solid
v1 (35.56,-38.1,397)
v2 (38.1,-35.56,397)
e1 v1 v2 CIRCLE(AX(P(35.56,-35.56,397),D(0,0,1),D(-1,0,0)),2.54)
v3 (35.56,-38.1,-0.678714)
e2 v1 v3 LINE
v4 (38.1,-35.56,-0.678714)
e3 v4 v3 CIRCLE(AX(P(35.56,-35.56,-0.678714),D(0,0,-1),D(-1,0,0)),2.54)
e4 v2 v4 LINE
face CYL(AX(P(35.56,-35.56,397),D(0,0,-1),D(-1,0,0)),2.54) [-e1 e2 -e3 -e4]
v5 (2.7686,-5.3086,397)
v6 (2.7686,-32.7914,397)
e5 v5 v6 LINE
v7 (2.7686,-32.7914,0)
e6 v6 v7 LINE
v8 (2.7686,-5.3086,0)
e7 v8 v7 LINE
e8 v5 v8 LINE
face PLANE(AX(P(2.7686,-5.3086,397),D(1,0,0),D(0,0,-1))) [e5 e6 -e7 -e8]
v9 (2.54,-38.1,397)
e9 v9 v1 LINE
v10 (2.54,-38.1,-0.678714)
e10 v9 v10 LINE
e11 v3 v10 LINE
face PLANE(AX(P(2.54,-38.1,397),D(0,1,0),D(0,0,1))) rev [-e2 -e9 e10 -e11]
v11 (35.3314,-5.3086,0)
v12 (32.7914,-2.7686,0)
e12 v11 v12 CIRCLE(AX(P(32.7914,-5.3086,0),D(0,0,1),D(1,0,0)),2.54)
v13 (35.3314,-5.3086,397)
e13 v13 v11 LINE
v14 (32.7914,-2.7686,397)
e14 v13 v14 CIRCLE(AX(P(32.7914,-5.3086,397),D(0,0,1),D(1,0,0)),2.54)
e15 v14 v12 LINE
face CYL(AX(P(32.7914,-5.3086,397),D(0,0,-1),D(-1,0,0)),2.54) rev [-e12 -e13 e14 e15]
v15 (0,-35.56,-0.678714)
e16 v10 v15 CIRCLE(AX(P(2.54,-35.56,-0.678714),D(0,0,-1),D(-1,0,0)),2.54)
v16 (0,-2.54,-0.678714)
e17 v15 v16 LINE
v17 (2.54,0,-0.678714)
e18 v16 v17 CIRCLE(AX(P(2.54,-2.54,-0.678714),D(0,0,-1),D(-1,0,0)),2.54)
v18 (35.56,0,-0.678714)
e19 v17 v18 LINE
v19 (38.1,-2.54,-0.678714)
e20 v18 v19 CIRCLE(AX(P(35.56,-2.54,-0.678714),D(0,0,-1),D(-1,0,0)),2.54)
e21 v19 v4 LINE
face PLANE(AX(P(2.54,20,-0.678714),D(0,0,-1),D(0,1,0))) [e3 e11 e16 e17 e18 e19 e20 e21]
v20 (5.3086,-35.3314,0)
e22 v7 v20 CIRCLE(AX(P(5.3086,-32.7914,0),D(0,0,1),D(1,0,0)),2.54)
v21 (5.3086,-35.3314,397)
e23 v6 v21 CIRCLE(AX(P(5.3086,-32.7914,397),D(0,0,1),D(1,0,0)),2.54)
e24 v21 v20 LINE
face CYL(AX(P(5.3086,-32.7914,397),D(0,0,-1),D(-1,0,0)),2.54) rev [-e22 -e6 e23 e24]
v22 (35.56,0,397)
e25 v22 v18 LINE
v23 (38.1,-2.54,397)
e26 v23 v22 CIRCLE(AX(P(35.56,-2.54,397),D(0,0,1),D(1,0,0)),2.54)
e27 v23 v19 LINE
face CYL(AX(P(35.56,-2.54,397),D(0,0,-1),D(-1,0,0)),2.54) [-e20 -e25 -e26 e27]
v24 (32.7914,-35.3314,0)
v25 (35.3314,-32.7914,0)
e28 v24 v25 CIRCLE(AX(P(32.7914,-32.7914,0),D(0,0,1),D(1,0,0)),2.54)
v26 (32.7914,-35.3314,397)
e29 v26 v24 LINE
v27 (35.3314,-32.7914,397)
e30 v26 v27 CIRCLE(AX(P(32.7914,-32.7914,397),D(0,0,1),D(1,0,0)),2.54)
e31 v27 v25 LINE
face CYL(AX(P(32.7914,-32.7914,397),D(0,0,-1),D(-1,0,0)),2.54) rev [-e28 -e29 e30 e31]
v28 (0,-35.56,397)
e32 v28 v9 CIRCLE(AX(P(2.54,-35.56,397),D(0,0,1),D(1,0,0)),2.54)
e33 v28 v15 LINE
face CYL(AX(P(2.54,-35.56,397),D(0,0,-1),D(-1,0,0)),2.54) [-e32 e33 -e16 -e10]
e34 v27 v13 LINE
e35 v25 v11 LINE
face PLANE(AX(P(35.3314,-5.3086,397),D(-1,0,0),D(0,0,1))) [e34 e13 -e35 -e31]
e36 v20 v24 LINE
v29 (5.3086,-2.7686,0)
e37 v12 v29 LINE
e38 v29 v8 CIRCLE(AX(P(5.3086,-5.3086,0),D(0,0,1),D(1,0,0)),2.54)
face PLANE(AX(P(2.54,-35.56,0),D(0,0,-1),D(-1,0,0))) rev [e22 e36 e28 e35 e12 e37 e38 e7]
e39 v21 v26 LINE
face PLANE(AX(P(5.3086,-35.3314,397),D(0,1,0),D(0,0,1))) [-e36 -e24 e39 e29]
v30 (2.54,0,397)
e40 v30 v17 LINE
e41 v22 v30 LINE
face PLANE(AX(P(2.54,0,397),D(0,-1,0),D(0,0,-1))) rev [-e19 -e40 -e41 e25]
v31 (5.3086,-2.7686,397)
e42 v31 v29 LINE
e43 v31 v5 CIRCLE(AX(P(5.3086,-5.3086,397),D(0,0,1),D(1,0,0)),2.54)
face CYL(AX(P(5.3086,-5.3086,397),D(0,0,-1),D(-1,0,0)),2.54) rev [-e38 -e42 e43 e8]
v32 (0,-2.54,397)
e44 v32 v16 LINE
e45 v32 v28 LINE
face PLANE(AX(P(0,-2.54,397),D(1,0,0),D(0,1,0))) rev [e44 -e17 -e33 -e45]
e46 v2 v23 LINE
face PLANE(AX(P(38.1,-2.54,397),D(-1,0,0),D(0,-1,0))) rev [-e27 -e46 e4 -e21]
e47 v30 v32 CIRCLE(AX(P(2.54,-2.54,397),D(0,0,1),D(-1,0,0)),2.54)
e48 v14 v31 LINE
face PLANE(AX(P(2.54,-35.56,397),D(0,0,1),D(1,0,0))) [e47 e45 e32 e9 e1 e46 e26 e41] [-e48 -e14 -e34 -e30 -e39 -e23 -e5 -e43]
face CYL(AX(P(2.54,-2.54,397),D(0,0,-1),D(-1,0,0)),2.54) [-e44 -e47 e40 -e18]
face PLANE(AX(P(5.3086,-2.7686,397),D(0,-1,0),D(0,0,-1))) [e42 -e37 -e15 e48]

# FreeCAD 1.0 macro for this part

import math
import FreeCAD as App
import Part
import Sketcher
Q = App.Units.Quantity

doc = App.newDocument("Part")
body = doc.addObject("PartDesign::Body", "Body")

# Sketch on XY plane
sketch1 = body.newObject("Sketcher::SketchObject", "Sketch")
sketch1.AttachmentSupport = (doc.getObject("XY_Plane"), [""])
sketch1.MapMode = "FlatFace"
sketch1.addGeometry([
    Part.LineSegment(App.Vector(35.6, 0, 0), App.Vector(2.5, 0, 0)),  # 0
    Part.ArcOfCircle(Part.Circle(App.Vector(2.5, -2.5, 0), App.Vector(0, 0, 1), 2.5), math.radians(90), math.radians(180)),  # 1
    Part.LineSegment(App.Vector(0, -2.5, 0), App.Vector(0, -35.6, 0)),  # 2
    Part.ArcOfCircle(Part.Circle(App.Vector(2.5, -35.6, 0), App.Vector(0, 0, 1), 2.5), math.radians(-180), math.radians(-90)),  # 3
    Part.LineSegment(App.Vector(2.5, -38.1, 0), App.Vector(35.6, -38.1, 0)),  # 4
    Part.ArcOfCircle(Part.Circle(App.Vector(35.6, -35.6, 0), App.Vector(0, 0, 1), 2.5), math.radians(-90), math.radians(0)),  # 5
    Part.LineSegment(App.Vector(38.1, -35.6, 0), App.Vector(38.1, -2.5, 0)),  # 6
    Part.ArcOfCircle(Part.Circle(App.Vector(35.6, -2.5, 0), App.Vector(0, 0, 1), 2.5), math.radians(0), math.radians(90)),  # 7
    Part.LineSegment(App.Vector(5.3, -2.8, 0), App.Vector(32.8, -2.8, 0)),  # 8
    Part.ArcOfCircle(Part.Circle(App.Vector(32.8, -5.3, 0), App.Vector(0, 0, 1), 2.5), math.radians(0), math.radians(90)),  # 9
    Part.LineSegment(App.Vector(35.3, -5.3, 0), App.Vector(35.3, -32.8, 0)),  # 10
    Part.ArcOfCircle(Part.Circle(App.Vector(32.8, -32.8, 0), App.Vector(0, 0, 1), 2.5), math.radians(-90), math.radians(0)),  # 11
    Part.LineSegment(App.Vector(32.8, -35.3, 0), App.Vector(5.3, -35.3, 0)),  # 12
    Part.ArcOfCircle(Part.Circle(App.Vector(5.3, -32.8, 0), App.Vector(0, 0, 1), 2.5), math.radians(-180), math.radians(-90)),  # 13
    Part.LineSegment(App.Vector(2.8, -32.8, 0), App.Vector(2.8, -5.3, 0)),  # 14
    Part.ArcOfCircle(Part.Circle(App.Vector(5.3, -5.3, 0), App.Vector(0, 0, 1), 2.5), math.radians(90), math.radians(180)),  # 15
], False)
sketch1.addConstraint([
    Sketcher.Constraint("Tangent", 0, 2, 1, 1),
    Sketcher.Constraint("Tangent", 1, 2, 2, 1),
    Sketcher.Constraint("Tangent", 2, 2, 3, 1),
    Sketcher.Constraint("Tangent", 3, 2, 4, 1),
    Sketcher.Constraint("Tangent", 4, 2, 5, 1),
    Sketcher.Constraint("Tangent", 5, 2, 6, 1),
    Sketcher.Constraint("Tangent", 6, 2, 7, 1),
    Sketcher.Constraint("Tangent", 7, 2, 0, 1),
    Sketcher.Constraint("Tangent", 8, 2, 9, 2),
    Sketcher.Constraint("Tangent", 9, 1, 10, 1),
    Sketcher.Constraint("Tangent", 10, 2, 11, 2),
    Sketcher.Constraint("Tangent", 11, 1, 12, 1),
    Sketcher.Constraint("Tangent", 12, 2, 13, 2),
    Sketcher.Constraint("Tangent", 13, 1, 14, 1),
    Sketcher.Constraint("Tangent", 14, 2, 15, 2),
    Sketcher.Constraint("Tangent", 15, 1, 8, 1),
    Sketcher.Constraint("Horizontal", 0),
    Sketcher.Constraint("Vertical", 2),
    Sketcher.Constraint("Horizontal", 4),
    Sketcher.Constraint("Vertical", 6),
    Sketcher.Constraint("Horizontal", 8),
    Sketcher.Constraint("Vertical", 10),
    Sketcher.Constraint("Horizontal", 12),
    Sketcher.Constraint("Vertical", 14),
    Sketcher.Constraint("Equal", 1, 3),
    Sketcher.Constraint("Equal", 3, 5),
    Sketcher.Constraint("Equal", 5, 7),
    Sketcher.Constraint("Equal", 7, 9),
    Sketcher.Constraint("Equal", 9, 11),
    Sketcher.Constraint("Equal", 11, 13),
    Sketcher.Constraint("Equal", 13, 15),
    Sketcher.Constraint("PointOnObject", 0, 2, -1),
    Sketcher.Constraint("PointOnObject", 1, 2, -2),
    Sketcher.Constraint("Equal", 4, 2),
    Sketcher.Constraint("Equal", 12, 10),
    Sketcher.Constraint("Radius", 1, Q("0.1 in")),
    Sketcher.Constraint("DistanceX", 0, 2, 0, 1, Q("1.3 in")),
    Sketcher.Constraint("DistanceX", 8, 1, 8, 2, Q("1.082 in")),
    Sketcher.Constraint("DistanceX", -1, 1, 9, 3, Q("1.291 in")),
    Sketcher.Constraint("DistanceY", 9, 3, -1, 1, Q("0.209 in")),
])
pad1 = body.newObject("PartDesign::Pad", "Pad")
pad1.Profile = sketch1
pad1.Length = 397

# Sketch on XY plane
sketch2 = body.newObject("Sketcher::SketchObject", "Sketch001")
sketch2.AttachmentSupport = (doc.getObject("XY_Plane"), [""])
sketch2.MapMode = "FlatFace"
sketch2.AttachmentOffset = App.Placement(App.Vector(0, 0, -0.678714), App.Rotation())
sketch2.addGeometry([
    Part.LineSegment(App.Vector(0, -35.6, 0), App.Vector(0, -2.5, 0)),  # 0
    Part.ArcOfCircle(Part.Circle(App.Vector(2.5, -2.5, 0), App.Vector(0, 0, 1), 2.5), math.radians(90), math.radians(180)),  # 1
    Part.LineSegment(App.Vector(2.5, 0, 0), App.Vector(35.6, 0, 0)),  # 2
    Part.ArcOfCircle(Part.Circle(App.Vector(35.6, -2.5, 0), App.Vector(0, 0, 1), 2.5), math.radians(0), math.radians(90)),  # 3
    Part.LineSegment(App.Vector(38.1, -2.5, 0), App.Vector(38.1, -35.6, 0)),  # 4
    Part.ArcOfCircle(Part.Circle(App.Vector(35.6, -35.6, 0), App.Vector(0, 0, 1), 2.5), math.radians(-90), math.radians(0)),  # 5
    Part.LineSegment(App.Vector(35.6, -38.1, 0), App.Vector(2.5, -38.1, 0)),  # 6
    Part.ArcOfCircle(Part.Circle(App.Vector(2.5, -35.6, 0), App.Vector(0, 0, 1), 2.5), math.radians(-180), math.radians(-90)),  # 7
], False)
sketch2.addConstraint([
    Sketcher.Constraint("Tangent", 0, 2, 1, 2),
    Sketcher.Constraint("Tangent", 1, 1, 2, 1),
    Sketcher.Constraint("Tangent", 2, 2, 3, 2),
    Sketcher.Constraint("Tangent", 3, 1, 4, 1),
    Sketcher.Constraint("Tangent", 4, 2, 5, 2),
    Sketcher.Constraint("Tangent", 5, 1, 6, 1),
    Sketcher.Constraint("Tangent", 6, 2, 7, 2),
    Sketcher.Constraint("Tangent", 7, 1, 0, 1),
    Sketcher.Constraint("Vertical", 0),
    Sketcher.Constraint("Horizontal", 2),
    Sketcher.Constraint("Vertical", 4),
    Sketcher.Constraint("Horizontal", 6),
    Sketcher.Constraint("Equal", 1, 3),
    Sketcher.Constraint("Equal", 3, 5),
    Sketcher.Constraint("Equal", 5, 7),
    Sketcher.Constraint("PointOnObject", 0, 2, -2),
    Sketcher.Constraint("PointOnObject", 1, 1, -1),
    Sketcher.Constraint("Equal", 6, 0),
    Sketcher.Constraint("Radius", 1, Q("0.1 in")),
    Sketcher.Constraint("DistanceX", 2, 1, 2, 2, Q("1.3 in")),
])
pad2 = body.newObject("PartDesign::Pad", "Pad001")
pad2.Profile = sketch2
pad2.Length = 0.678714

doc.recompute()
